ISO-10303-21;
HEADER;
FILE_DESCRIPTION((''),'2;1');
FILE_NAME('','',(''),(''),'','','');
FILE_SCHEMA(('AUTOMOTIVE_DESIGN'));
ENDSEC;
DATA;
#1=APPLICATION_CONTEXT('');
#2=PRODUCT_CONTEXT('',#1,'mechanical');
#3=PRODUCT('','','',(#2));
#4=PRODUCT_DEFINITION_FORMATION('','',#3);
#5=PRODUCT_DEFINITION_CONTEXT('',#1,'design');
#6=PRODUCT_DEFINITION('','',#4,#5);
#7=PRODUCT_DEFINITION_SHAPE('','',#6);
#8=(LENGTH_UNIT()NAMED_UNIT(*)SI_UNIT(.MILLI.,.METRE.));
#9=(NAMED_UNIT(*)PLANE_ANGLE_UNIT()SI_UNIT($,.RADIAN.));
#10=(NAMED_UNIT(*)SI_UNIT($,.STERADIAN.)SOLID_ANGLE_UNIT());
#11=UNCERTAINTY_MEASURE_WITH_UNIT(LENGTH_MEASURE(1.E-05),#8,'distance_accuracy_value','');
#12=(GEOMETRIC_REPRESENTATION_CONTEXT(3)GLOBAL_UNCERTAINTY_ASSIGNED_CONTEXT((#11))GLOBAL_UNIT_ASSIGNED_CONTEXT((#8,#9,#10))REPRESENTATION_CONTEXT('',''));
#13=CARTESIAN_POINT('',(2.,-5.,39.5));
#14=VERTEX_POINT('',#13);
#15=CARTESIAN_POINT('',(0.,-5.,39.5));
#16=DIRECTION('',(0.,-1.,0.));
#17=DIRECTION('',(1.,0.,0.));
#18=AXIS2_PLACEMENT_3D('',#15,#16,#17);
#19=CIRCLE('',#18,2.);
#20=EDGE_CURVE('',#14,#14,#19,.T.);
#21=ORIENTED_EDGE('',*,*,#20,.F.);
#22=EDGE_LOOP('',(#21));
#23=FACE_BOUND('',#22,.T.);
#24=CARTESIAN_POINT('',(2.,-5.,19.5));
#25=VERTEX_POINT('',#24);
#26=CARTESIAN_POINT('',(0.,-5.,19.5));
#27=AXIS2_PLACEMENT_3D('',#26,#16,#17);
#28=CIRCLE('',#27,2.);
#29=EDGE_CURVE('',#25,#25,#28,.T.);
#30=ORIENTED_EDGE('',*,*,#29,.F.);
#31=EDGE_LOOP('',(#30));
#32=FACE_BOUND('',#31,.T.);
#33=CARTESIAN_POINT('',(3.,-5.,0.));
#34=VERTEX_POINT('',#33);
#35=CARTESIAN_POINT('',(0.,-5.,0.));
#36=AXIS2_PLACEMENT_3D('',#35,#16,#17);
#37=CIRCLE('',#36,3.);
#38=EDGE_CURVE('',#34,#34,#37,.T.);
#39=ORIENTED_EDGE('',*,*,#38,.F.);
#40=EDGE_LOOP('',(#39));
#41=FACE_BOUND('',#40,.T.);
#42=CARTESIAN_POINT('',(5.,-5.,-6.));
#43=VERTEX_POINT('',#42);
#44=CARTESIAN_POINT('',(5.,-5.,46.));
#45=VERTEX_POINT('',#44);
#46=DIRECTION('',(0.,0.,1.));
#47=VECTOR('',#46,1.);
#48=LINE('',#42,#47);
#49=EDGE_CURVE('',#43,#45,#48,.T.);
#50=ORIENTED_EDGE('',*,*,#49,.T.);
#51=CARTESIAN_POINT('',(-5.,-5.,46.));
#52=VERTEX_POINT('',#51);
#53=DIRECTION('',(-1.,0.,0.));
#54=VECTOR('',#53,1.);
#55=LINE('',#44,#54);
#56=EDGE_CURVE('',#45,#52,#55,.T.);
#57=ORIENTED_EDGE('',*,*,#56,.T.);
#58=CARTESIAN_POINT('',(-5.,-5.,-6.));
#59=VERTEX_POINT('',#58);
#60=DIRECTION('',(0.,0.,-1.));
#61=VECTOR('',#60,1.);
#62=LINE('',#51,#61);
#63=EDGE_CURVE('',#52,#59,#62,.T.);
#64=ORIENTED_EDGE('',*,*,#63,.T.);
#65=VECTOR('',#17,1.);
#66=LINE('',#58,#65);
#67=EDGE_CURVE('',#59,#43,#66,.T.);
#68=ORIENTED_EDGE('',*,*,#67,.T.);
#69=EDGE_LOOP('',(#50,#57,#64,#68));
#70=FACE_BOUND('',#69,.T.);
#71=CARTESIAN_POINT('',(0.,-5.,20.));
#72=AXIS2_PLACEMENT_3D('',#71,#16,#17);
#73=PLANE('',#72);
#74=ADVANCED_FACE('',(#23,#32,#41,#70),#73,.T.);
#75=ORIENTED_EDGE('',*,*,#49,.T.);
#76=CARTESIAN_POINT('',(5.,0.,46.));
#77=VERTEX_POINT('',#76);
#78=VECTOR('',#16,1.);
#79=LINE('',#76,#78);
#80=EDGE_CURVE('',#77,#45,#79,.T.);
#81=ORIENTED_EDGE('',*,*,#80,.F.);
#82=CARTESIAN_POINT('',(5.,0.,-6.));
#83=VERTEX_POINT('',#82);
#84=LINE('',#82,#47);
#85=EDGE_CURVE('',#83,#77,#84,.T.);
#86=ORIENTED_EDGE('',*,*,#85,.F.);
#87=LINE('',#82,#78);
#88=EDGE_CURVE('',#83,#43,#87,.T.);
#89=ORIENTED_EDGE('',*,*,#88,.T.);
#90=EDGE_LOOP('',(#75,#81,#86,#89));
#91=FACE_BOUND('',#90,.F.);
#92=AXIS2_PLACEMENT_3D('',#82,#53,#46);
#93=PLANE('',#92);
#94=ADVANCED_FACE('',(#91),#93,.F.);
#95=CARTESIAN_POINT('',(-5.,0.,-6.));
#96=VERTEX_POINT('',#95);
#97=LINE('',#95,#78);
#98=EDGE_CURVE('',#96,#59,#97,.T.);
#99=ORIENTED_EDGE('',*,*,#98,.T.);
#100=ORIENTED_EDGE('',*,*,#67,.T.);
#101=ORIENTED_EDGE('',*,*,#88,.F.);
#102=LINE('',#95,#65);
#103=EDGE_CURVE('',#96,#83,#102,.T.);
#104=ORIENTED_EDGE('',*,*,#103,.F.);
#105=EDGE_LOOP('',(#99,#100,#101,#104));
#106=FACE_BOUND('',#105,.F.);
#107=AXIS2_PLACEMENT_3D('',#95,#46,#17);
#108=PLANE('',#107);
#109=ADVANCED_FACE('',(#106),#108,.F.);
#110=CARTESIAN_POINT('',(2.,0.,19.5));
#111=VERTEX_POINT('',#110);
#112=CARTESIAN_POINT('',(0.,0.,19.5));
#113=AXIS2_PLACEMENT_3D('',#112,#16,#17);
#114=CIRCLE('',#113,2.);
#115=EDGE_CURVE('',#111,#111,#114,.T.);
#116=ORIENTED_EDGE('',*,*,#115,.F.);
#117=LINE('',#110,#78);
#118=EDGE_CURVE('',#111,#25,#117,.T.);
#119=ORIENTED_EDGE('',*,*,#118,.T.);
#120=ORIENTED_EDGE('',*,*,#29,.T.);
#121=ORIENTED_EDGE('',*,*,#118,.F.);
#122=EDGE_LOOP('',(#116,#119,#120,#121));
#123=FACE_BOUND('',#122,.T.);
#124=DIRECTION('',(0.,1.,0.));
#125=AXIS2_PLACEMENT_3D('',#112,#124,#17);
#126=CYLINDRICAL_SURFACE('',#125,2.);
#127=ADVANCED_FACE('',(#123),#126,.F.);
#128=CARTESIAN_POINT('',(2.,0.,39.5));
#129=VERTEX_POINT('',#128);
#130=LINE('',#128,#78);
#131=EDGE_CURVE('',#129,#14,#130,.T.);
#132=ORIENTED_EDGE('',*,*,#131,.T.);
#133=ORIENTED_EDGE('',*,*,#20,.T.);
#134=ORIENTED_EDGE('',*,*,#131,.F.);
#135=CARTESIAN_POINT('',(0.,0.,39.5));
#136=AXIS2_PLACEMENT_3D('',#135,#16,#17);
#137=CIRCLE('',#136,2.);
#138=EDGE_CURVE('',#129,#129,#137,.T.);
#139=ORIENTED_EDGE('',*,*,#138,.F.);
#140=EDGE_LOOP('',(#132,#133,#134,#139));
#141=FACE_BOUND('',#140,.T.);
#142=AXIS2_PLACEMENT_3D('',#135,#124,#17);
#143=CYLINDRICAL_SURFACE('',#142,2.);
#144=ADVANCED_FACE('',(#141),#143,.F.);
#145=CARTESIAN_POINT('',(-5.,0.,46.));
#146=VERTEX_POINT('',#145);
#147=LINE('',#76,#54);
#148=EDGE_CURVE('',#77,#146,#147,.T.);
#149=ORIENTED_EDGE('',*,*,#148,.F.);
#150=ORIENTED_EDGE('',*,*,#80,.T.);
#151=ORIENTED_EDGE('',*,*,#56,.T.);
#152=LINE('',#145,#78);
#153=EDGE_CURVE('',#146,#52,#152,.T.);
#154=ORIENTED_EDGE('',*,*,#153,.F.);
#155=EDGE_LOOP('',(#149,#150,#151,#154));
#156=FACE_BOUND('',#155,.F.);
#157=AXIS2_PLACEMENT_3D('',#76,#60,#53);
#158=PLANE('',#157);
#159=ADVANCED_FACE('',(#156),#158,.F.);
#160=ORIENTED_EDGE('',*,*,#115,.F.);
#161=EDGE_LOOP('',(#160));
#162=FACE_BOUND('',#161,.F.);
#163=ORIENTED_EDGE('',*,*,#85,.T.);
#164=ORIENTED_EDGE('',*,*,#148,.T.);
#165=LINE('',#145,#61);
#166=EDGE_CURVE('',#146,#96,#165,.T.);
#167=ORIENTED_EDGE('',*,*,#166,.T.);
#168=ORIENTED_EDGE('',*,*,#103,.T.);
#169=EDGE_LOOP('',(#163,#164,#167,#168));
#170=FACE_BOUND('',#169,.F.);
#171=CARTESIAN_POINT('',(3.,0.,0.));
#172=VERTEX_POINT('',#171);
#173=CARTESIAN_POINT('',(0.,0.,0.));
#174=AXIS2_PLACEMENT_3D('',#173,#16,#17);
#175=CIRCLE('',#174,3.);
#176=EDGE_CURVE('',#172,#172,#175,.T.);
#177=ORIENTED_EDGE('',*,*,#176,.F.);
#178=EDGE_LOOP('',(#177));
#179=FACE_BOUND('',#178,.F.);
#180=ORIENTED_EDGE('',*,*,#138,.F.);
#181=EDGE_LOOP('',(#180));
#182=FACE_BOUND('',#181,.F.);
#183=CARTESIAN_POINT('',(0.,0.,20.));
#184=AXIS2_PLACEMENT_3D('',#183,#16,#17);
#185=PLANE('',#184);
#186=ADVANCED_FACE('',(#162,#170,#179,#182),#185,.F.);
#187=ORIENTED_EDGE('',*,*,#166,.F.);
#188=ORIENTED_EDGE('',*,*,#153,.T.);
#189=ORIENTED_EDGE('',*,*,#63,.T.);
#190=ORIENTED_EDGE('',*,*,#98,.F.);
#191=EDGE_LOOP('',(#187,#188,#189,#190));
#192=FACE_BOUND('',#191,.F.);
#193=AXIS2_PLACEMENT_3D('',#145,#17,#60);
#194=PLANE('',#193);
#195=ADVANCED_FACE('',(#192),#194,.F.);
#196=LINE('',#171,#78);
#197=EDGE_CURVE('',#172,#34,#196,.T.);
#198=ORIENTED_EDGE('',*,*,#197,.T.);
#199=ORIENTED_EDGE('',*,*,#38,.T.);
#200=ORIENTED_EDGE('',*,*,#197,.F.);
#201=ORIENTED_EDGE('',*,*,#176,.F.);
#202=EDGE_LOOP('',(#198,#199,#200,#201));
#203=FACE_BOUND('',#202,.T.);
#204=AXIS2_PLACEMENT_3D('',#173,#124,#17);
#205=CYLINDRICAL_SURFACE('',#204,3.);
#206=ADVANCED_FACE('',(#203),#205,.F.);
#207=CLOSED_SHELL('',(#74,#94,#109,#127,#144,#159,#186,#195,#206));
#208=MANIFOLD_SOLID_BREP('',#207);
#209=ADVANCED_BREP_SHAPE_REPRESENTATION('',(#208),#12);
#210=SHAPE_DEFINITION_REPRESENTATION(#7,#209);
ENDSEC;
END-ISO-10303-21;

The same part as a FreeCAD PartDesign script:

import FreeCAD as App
import Part
import Sketcher
Q = App.Units.Quantity


def add_polygon(sketch, points):
    """Adds a closed chain of lines whose ends are joined by coincident constraints."""
    first, n = sketch.GeometryCount, len(points)
    for a, b in zip(points, points[1:] + points[:1]):
        sketch.addGeometry(Part.LineSegment(App.Vector(*a, 0), App.Vector(*b, 0)), False)
    for i in range(n):
        sketch.addConstraint(Sketcher.Constraint("Coincident", first + i, 2, first + (i + 1) % n, 1))

doc = App.newDocument("Part")
body = doc.addObject("PartDesign::Body", "Body")

sketch1 = doc.addObject("Sketcher::SketchObject", "Sketch")
body.addObject(sketch1)
sketch1.AttachmentSupport = (doc.XZ_Plane, [""])
sketch1.MapMode = "FlatFace"
add_polygon(sketch1, [(-5, -6), (5, -6), (5, 46), (-5, 46)])
sketch1.addGeometry(Part.Circle(App.Vector(0, 0, 0), App.Vector(0, 0, 1), 3), False)
sketch1.addGeometry(Part.Circle(App.Vector(0, 19.5, 0), App.Vector(0, 0, 1), 2), False)
sketch1.addGeometry(Part.Circle(App.Vector(0, 39.5, 0), App.Vector(0, 0, 1), 2), False)
sketch1.addConstraint([
    Sketcher.Constraint("Horizontal", 0),
    Sketcher.Constraint("Vertical", 1),
    Sketcher.Constraint("Horizontal", 2),
    Sketcher.Constraint("Vertical", 3),
    Sketcher.Constraint("Coincident", 4, 3, -1, 1),
    Sketcher.Constraint("Equal", 5, 6),
    Sketcher.Constraint("PointOnObject", 5, 3, -2),
    Sketcher.Constraint("PointOnObject", 6, 3, -2),
    Sketcher.Constraint("Diameter", 4, Q("6 mm")),
    Sketcher.Constraint("Diameter", 5, Q("4 mm")),
    Sketcher.Constraint("DistanceX", 0, 1, 0, 2, Q("10 mm")),
    Sketcher.Constraint("DistanceY", 1, 1, 1, 2, Q("52 mm")),
    Sketcher.Constraint("DistanceX", -1, 1, 0, 2, Q("5 mm")),
    Sketcher.Constraint("DistanceY", 0, 2, -1, 1, Q("6 mm")),
    Sketcher.Constraint("DistanceY", 5, 3, 6, 3, Q("20 mm")),
    Sketcher.Constraint("DistanceY", -1, 1, 5, 3, Q("19.5 mm")),
])
pad1 = doc.addObject("PartDesign::Pad", "Pad")
body.addObject(pad1)
pad1.Profile = sketch1
pad1.Length = 5

doc.recompute()
